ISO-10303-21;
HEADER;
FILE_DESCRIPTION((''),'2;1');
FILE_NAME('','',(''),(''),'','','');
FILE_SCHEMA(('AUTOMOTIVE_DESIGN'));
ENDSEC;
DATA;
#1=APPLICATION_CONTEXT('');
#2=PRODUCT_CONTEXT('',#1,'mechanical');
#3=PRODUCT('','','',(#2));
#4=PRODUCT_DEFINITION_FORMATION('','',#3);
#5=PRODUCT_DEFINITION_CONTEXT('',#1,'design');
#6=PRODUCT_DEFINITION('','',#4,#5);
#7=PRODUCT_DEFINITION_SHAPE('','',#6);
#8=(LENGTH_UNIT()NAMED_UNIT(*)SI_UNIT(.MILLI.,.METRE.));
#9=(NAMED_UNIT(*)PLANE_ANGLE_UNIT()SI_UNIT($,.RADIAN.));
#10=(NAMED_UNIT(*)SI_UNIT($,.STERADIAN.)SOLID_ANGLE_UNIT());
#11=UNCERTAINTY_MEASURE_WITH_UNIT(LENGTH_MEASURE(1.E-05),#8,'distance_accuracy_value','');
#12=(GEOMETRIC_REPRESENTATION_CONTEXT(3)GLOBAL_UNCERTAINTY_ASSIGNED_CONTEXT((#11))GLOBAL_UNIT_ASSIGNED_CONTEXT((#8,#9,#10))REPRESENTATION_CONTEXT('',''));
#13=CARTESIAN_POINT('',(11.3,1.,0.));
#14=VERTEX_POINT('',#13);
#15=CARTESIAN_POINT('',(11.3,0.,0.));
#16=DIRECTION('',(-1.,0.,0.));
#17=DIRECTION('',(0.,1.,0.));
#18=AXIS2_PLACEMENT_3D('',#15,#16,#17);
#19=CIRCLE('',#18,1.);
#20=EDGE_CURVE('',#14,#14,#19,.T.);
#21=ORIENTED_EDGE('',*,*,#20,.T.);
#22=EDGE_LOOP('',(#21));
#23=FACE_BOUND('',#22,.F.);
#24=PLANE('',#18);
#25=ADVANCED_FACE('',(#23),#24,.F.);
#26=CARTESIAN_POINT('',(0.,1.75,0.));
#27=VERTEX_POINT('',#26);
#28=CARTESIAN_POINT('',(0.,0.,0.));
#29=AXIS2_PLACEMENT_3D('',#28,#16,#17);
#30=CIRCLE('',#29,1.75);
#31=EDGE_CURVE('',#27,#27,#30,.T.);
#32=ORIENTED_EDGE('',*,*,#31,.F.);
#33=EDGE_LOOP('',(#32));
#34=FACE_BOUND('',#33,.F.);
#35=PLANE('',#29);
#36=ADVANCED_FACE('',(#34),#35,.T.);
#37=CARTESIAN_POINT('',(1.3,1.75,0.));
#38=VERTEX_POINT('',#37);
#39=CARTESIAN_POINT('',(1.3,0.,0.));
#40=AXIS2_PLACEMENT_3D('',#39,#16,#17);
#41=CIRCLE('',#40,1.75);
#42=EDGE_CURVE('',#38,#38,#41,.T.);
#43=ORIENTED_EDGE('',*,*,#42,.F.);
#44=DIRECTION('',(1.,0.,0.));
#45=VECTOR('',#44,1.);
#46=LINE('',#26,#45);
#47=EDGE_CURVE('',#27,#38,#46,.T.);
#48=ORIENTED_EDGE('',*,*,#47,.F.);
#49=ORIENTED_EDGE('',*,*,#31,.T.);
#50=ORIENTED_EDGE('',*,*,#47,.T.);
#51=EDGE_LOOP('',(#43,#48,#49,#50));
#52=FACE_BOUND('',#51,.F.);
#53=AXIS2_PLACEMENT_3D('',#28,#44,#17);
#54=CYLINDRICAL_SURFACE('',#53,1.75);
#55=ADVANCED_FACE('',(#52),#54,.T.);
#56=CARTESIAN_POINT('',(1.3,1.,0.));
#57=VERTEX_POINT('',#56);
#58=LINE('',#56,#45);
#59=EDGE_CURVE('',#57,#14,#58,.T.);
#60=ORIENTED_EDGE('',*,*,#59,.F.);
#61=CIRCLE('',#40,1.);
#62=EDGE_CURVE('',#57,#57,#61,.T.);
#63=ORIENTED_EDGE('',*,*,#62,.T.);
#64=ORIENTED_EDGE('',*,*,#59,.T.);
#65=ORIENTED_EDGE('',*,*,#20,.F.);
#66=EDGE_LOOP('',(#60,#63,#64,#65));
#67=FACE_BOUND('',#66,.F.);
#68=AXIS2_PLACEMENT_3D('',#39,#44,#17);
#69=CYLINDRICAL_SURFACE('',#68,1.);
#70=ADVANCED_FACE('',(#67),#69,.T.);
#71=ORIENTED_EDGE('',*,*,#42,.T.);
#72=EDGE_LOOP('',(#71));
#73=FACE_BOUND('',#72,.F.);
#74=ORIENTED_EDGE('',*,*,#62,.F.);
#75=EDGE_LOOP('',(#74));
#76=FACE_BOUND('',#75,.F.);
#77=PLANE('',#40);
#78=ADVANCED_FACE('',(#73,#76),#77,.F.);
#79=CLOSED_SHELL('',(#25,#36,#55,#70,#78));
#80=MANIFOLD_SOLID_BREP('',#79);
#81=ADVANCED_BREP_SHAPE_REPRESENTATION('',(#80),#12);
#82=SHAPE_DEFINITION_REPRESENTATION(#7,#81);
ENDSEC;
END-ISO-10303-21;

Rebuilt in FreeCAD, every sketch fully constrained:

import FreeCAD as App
import Part
import Sketcher

doc = App.newDocument("Part")
body = doc.addObject("PartDesign::Body", "Body")

# Sketch on XY plane
sketch1 = doc.addObject("Sketcher::SketchObject", "Sketch")
body.addObject(sketch1)
sketch1.AttachmentSupport = (doc.XY_Plane, [""])
sketch1.MapMode = "FlatFace"
sketch1.addGeometry(Part.LineSegment(App.Vector(0, 1.8, 0), App.Vector(0, 0, 0)), False)
sketch1.addGeometry(Part.LineSegment(App.Vector(0, 0, 0), App.Vector(11.3, 0, 0)), False)
sketch1.addGeometry(Part.LineSegment(App.Vector(11.3, 0, 0), App.Vector(11.3, 1, 0)), False)
sketch1.addGeometry(Part.LineSegment(App.Vector(11.3, 1, 0), App.Vector(1.3, 1, 0)), False)
sketch1.addGeometry(Part.LineSegment(App.Vector(1.3, 1, 0), App.Vector(1.3, 1.8, 0)), False)
sketch1.addGeometry(Part.LineSegment(App.Vector(1.3, 1.8, 0), App.Vector(0, 1.8, 0)), False)
sketch1.addConstraint(Sketcher.Constraint("Coincident", 0, 2, 1, 1))
sketch1.addConstraint(Sketcher.Constraint("Coincident", 1, 2, 2, 1))
sketch1.addConstraint(Sketcher.Constraint("Coincident", 2, 2, 3, 1))
sketch1.addConstraint(Sketcher.Constraint("Coincident", 3, 2, 4, 1))
sketch1.addConstraint(Sketcher.Constraint("Coincident", 4, 2, 5, 1))
sketch1.addConstraint(Sketcher.Constraint("Coincident", 5, 2, 0, 1))
sketch1.addConstraint(Sketcher.Constraint("Vertical", 0))
sketch1.addConstraint(Sketcher.Constraint("Horizontal", 1))
sketch1.addConstraint(Sketcher.Constraint("Vertical", 2))
sketch1.addConstraint(Sketcher.Constraint("Horizontal", 3))
sketch1.addConstraint(Sketcher.Constraint("Vertical", 4))
sketch1.addConstraint(Sketcher.Constraint("Horizontal", 5))
sketch1.addConstraint(Sketcher.Constraint("Coincident", 0, 2, -1, 1))
sketch1.addConstraint(Sketcher.Constraint("DistanceX", 3, 2, 3, 1, 10.0))
sketch1.addConstraint(Sketcher.Constraint("DistanceY", 2, 1, 2, 2, 1.0))
sketch1.addConstraint(Sketcher.Constraint("DistanceX", 5, 2, 5, 1, 1.3))
sketch1.addConstraint(Sketcher.Constraint("DistanceY", 0, 2, 0, 1, 1.75))
revolution = doc.addObject("PartDesign::Revolution", "Revolution")
body.addObject(revolution)
revolution.Profile = sketch1
revolution.ReferenceAxis = (sketch1, ["H_Axis"])
revolution.Angle = 360

doc.recompute()
